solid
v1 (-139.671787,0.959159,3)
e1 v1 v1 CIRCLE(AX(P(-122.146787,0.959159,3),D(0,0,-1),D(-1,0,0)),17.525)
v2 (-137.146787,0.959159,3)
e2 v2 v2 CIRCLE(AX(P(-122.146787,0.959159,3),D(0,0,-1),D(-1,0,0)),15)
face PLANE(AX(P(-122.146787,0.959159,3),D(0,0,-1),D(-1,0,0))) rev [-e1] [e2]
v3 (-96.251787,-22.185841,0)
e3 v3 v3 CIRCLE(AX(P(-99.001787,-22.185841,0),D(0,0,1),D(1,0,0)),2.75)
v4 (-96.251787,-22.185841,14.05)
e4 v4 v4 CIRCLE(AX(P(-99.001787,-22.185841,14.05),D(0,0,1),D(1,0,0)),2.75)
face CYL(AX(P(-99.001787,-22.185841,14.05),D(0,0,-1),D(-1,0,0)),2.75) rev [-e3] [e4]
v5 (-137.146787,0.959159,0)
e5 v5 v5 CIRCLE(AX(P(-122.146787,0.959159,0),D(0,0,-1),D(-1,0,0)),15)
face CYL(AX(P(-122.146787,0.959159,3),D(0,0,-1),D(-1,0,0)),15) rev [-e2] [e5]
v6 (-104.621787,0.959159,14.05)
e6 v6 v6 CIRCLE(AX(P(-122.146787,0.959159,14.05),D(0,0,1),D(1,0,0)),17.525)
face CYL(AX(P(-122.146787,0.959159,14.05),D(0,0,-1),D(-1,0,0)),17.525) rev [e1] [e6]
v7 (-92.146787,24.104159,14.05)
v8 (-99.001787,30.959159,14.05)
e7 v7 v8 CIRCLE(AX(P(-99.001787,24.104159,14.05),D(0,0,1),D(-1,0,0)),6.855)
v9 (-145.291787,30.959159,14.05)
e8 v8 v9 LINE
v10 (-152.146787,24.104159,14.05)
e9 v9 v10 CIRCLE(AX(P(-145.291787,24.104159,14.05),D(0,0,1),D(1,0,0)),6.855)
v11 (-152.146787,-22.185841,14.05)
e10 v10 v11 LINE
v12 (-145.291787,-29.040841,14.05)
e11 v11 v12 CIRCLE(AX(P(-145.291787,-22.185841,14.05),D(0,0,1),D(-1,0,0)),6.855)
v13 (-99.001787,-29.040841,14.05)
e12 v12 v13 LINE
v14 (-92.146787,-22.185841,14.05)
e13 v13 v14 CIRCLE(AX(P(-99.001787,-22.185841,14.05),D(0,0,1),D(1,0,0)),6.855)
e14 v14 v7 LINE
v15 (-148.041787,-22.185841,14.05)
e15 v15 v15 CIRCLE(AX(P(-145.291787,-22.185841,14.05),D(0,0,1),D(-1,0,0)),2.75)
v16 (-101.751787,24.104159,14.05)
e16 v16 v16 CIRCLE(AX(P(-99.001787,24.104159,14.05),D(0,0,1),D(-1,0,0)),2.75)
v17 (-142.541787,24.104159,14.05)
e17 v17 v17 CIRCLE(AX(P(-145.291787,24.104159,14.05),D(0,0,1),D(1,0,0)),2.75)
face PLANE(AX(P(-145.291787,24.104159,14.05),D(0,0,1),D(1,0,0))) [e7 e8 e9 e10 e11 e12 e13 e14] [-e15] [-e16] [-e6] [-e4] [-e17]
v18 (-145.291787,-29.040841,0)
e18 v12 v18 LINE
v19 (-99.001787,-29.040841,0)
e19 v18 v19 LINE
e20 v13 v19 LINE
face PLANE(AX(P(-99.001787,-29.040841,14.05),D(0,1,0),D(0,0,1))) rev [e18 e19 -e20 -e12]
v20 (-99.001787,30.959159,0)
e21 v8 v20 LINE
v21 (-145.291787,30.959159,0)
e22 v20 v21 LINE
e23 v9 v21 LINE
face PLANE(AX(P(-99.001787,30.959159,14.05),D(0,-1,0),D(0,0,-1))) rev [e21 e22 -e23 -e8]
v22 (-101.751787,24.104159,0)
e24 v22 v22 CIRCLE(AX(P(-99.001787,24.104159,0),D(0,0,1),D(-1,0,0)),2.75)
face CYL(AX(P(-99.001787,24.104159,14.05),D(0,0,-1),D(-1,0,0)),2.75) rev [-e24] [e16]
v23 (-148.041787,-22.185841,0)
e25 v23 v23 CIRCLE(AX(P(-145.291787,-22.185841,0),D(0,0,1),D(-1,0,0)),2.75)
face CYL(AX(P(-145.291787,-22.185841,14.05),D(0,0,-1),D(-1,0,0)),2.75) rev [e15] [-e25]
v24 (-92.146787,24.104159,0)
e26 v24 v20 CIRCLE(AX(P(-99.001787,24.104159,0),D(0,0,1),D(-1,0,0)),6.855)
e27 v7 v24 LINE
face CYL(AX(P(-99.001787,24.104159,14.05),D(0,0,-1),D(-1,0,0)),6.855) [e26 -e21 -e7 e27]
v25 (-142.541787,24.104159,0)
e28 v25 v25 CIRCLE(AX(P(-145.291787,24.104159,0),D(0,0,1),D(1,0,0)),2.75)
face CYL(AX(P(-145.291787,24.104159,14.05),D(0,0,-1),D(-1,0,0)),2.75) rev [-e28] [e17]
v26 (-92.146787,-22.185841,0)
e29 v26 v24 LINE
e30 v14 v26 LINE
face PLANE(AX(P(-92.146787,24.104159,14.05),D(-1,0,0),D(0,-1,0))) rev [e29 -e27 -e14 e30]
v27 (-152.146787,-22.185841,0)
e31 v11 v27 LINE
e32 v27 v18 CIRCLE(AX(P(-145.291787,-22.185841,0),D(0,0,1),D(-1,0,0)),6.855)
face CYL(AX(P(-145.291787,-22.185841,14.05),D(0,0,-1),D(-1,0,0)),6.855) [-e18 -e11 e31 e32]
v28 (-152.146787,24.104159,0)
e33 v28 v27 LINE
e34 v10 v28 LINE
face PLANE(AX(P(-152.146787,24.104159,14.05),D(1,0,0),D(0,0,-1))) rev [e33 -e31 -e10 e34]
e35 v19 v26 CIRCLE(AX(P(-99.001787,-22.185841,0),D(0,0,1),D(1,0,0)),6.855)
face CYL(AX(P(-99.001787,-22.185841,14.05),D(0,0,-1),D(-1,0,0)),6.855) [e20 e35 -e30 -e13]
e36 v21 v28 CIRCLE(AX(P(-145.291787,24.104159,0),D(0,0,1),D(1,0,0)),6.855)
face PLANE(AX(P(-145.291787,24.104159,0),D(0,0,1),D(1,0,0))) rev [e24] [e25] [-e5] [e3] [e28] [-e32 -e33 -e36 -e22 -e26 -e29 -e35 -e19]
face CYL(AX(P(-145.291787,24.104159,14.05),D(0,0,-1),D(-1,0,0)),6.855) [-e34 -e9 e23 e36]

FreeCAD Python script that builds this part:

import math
import FreeCAD as App
import Part
import Sketcher

V = App.Vector
Q = App.Units.Quantity

doc = App.newDocument("Part")
body = doc.addObject("PartDesign::Body", "Body")

# Sketch on XY plane
sketch1 = body.newObject("Sketcher::SketchObject", "Sketch")
sketch1.AttachmentSupport = (doc.getObject("XY_Plane"), [""])
sketch1.MapMode = "FlatFace"
sketch1.addGeometry([
    Part.LineSegment(V(-99, 31, 0), V(-145.3, 31, 0)),  # 0
    Part.ArcOfCircle(Part.Circle(V(-145.3, 24.1, 0), V(0, 0, 1), 6.9), math.radians(90), math.radians(180)),  # 1
    Part.LineSegment(V(-152.1, 24.1, 0), V(-152.1, -22.2, 0)),  # 2
    Part.ArcOfCircle(Part.Circle(V(-145.3, -22.2, 0), V(0, 0, 1), 6.9), math.radians(180), math.radians(270)),  # 3
    Part.LineSegment(V(-145.3, -29, 0), V(-99, -29, 0)),  # 4
    Part.ArcOfCircle(Part.Circle(V(-99, -22.2, 0), V(0, 0, 1), 6.9), math.radians(-90), math.radians(0)),  # 5
    Part.LineSegment(V(-92.1, -22.2, 0), V(-92.1, 24.1, 0)),  # 6
    Part.ArcOfCircle(Part.Circle(V(-99, 24.1, 0), V(0, 0, 1), 6.9), math.radians(0), math.radians(90)),  # 7
    Part.Circle(V(-145.3, -22.2, 0), V(0, 0, 1), 2.8),  # 8
    Part.Circle(V(-122.1, 1, 0), V(0, 0, 1), 17.5),  # 9
    Part.Circle(V(-99, -22.2, 0), V(0, 0, 1), 2.8),  # 10
    Part.Circle(V(-145.3, 24.1, 0), V(0, 0, 1), 2.8),  # 11
    Part.Circle(V(-99, 24.1, 0), V(0, 0, 1), 2.8),  # 12
], False)
sketch1.addConstraint([
    Sketcher.Constraint("Tangent", 0, 2, 1, 1),
    Sketcher.Constraint("Tangent", 1, 2, 2, 1),
    Sketcher.Constraint("Tangent", 2, 2, 3, 1),
    Sketcher.Constraint("Tangent", 3, 2, 4, 1),
    Sketcher.Constraint("Tangent", 4, 2, 5, 1),
    Sketcher.Constraint("Tangent", 5, 2, 6, 1),
    Sketcher.Constraint("Tangent", 6, 2, 7, 1),
    Sketcher.Constraint("Tangent", 7, 2, 0, 1),
    Sketcher.Constraint("Horizontal", 0),
    Sketcher.Constraint("Vertical", 2),
    Sketcher.Constraint("Horizontal", 4),
    Sketcher.Constraint("Vertical", 6),
    Sketcher.Constraint("Coincident", 8, 3, 3, 3),
    Sketcher.Constraint("Coincident", 10, 3, 5, 3),
    Sketcher.Constraint("Coincident", 11, 3, 1, 3),
    Sketcher.Constraint("Coincident", 12, 3, 7, 3),
    Sketcher.Constraint("Equal", 1, 3),
    Sketcher.Constraint("Equal", 3, 5),
    Sketcher.Constraint("Equal", 5, 7),
    Sketcher.Constraint("Equal", 8, 10),
    Sketcher.Constraint("Equal", 10, 11),
    Sketcher.Constraint("Equal", 11, 12),
    Sketcher.Constraint("Equal", 4, 2),
    Sketcher.Constraint("Diameter", 8, Q("5.5 mm")),
    Sketcher.Constraint("Diameter", 9, Q("35.05 mm")),
    Sketcher.Constraint("Radius", 1, Q("6.855 mm")),
    Sketcher.Constraint("DistanceY", 9, 3, 0, 2, Q("30 mm")),
    Sketcher.Constraint("DistanceX", 1, 2, 9, 3, Q("30 mm")),
    Sketcher.Constraint("DistanceY", 3, 2, 9, 3, Q("30 mm")),
    Sketcher.Constraint("DistanceY", -1, 1, 1, 3, Q("24.104159 mm")),
    Sketcher.Constraint("DistanceX", 1, 3, -1, 1, Q("145.291787 mm")),
])
pad1 = body.newObject("PartDesign::Pad", "Pad")
pad1.Profile = sketch1
pad1.Length = 14.05

# Sketch on XY plane
sketch2 = body.newObject("Sketcher::SketchObject", "Sketch001")
sketch2.AttachmentSupport = (doc.getObject("XY_Plane"), [""])
sketch2.MapMode = "FlatFace"
sketch2.addGeometry([
    Part.Circle(V(-122, 1, 0), V(0, 0, 1), 20),
    Part.Circle(V(-122, 1, 0), V(0, 0, 1), 15),
], False)
sketch2.addConstraint([
    Sketcher.Constraint("Coincident", 1, 3, 0, 3),
    Sketcher.Constraint("Diameter", 0, Q("40 mm")),
    Sketcher.Constraint("Diameter", 1, Q("30 mm")),
    Sketcher.Constraint("DistanceY", -1, 1, 0, 3, Q("0.959159 mm")),
    Sketcher.Constraint("DistanceX", 0, 3, -1, 1, Q("122.146787 mm")),
])
pad2 = body.newObject("PartDesign::Pad", "Pad001")
pad2.Profile = sketch2
pad2.Length = 3

doc.recompute()
